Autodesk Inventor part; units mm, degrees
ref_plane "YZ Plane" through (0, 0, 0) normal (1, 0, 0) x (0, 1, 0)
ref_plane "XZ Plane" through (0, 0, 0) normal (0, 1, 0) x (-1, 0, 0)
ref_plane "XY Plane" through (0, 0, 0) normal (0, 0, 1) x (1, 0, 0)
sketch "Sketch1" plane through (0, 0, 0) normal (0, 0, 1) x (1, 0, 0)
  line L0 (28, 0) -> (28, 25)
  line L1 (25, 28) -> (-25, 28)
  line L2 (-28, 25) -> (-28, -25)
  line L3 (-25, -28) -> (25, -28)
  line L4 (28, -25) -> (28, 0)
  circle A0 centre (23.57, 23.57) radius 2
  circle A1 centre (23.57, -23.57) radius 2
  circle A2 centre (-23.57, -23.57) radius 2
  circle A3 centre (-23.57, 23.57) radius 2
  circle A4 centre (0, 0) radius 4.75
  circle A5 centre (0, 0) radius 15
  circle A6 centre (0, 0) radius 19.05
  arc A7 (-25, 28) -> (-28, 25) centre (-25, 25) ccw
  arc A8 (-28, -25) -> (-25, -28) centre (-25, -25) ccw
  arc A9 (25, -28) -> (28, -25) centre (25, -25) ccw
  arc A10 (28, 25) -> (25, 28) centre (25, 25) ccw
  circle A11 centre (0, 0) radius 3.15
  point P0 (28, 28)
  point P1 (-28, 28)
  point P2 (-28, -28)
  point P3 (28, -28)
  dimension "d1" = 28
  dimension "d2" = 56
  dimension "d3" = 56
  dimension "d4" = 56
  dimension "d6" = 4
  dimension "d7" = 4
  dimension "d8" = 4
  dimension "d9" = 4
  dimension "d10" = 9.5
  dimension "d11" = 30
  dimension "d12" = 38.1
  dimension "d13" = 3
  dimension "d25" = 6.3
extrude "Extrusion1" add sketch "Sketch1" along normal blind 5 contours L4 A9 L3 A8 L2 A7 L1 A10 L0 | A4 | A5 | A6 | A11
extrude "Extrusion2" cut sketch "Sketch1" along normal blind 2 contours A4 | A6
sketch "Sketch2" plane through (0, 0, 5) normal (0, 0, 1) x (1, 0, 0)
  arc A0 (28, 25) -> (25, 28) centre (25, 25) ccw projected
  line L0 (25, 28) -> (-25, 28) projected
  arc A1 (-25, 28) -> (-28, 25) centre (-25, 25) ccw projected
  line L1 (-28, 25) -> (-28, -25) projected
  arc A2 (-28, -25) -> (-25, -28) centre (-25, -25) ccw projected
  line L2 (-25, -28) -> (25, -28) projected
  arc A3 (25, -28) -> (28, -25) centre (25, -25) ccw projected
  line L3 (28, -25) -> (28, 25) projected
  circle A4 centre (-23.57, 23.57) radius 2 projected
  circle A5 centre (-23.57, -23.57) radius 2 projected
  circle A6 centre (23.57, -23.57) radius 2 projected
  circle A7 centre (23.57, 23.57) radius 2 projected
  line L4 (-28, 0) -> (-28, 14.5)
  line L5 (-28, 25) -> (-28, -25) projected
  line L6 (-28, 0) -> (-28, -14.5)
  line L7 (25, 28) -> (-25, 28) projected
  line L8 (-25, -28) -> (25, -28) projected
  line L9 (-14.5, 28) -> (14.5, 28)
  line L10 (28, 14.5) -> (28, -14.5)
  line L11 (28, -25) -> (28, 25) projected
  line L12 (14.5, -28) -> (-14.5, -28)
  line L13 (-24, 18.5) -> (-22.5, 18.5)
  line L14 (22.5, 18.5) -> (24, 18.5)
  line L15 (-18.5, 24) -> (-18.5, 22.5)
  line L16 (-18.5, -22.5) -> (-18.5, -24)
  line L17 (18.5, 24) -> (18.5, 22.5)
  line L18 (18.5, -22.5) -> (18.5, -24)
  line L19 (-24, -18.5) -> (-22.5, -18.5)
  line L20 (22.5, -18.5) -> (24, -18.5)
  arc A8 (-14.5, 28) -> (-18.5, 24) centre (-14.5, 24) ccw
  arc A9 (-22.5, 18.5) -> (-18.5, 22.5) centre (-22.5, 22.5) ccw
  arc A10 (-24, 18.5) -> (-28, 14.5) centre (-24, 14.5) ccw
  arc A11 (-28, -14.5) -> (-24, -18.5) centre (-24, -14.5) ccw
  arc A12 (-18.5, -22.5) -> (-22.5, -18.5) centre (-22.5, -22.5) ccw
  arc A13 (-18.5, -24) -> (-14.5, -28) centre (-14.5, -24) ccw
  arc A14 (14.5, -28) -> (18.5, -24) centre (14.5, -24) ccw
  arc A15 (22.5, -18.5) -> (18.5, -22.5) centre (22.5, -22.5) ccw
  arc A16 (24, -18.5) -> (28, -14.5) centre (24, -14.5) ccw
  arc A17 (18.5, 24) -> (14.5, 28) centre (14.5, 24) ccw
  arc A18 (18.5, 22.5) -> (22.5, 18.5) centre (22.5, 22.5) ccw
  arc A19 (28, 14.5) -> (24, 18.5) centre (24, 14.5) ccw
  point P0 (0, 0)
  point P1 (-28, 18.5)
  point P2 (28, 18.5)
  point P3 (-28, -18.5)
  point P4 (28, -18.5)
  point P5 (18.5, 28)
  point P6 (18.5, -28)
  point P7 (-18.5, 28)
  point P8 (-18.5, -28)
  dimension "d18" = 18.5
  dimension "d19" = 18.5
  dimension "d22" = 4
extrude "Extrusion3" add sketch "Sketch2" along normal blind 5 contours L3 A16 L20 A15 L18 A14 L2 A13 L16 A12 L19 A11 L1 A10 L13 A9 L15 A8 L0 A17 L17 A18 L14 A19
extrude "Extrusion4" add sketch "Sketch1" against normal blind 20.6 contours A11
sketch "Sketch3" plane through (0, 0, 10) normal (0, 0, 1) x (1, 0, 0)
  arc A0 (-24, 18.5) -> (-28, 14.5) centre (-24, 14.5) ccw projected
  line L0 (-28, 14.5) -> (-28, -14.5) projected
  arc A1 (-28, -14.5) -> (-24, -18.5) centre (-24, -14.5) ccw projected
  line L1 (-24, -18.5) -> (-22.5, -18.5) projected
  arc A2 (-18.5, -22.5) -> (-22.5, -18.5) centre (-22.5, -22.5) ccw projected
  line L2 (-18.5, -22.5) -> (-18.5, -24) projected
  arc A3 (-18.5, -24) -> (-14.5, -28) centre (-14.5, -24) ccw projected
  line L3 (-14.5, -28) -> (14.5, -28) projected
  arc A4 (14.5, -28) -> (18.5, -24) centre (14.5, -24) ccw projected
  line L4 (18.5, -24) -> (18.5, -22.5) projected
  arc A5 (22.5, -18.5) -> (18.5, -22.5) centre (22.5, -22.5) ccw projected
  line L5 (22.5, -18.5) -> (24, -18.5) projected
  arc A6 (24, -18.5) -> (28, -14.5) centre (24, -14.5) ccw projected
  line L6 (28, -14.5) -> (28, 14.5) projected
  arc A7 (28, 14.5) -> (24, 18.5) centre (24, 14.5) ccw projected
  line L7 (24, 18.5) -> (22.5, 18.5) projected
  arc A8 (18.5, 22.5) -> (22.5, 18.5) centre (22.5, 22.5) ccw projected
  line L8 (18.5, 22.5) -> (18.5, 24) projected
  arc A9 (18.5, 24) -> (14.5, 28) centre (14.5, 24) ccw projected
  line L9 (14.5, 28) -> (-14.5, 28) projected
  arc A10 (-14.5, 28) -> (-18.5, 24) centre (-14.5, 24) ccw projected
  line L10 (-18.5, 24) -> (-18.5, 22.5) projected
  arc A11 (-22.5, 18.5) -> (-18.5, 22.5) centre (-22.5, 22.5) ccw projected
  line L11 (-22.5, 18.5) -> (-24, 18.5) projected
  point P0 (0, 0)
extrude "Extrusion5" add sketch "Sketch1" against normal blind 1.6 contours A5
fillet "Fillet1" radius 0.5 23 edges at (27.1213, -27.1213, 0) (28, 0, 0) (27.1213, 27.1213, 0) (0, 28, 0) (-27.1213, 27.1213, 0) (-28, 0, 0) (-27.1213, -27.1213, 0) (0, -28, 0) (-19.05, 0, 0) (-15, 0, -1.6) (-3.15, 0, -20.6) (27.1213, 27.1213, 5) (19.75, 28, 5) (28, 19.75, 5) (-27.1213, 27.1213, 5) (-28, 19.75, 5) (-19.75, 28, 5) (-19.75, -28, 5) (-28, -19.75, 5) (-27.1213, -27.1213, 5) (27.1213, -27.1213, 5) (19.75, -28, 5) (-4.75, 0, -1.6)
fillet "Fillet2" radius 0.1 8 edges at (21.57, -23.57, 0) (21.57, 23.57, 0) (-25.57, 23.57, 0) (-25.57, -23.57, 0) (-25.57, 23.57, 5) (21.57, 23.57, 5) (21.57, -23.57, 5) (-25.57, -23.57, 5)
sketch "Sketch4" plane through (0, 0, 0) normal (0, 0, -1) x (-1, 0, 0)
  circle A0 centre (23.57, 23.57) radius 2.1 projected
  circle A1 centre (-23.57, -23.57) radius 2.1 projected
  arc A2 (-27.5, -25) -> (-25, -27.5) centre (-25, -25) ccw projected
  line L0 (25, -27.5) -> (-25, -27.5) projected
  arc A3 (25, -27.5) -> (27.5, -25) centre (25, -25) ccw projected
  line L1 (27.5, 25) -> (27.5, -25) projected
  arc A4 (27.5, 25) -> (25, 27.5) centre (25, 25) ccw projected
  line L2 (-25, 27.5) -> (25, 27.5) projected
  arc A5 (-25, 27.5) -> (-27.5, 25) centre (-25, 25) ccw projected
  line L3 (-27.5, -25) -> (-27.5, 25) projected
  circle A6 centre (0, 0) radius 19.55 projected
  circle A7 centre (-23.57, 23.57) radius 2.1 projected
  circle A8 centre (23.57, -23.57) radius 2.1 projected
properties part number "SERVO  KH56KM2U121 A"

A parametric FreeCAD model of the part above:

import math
import FreeCAD as App
import Part
import Sketcher
from FreeCAD import Vector


def edges_at(feature, points):
    """Names of the edges that pass closest to the given points."""
    edges = feature.Shape.Edges
    near = lambda p: min(range(len(edges)), key=lambda i: edges[i].distToShape(Part.Vertex(*p))[0])
    return sorted({f"Edge{near(p) + 1}" for p in points})

doc = App.newDocument("Part")
params = doc.addObject("Spreadsheet::Sheet", "Params")
for row, (alias, value) in enumerate([
    ("sketch1_diameter", "4 mm"),
    ("sketch1_radius", "3 mm"),
    ("pad1_length", "5 mm"),
    ("sketch2_diameter", "30 mm"),
    ("sketch2_diameter2", "9.5 mm"),
    ("sketch2_diameter3", "6.3 mm"),
    ("sketch2_diameter4", "38.1 mm"),
    ("pocket1_length", "2 mm"),
    ("sketch3_radius", "4 mm"),
    ("sketch3_width", "1.5 mm"),
    ("pad2_length", "5 mm"),
    ("sketch4_diameter", "6.3 mm"),
    ("pad3_length", "20.6 mm"),
    ("sketch5_diameter", "30 mm"),
    ("sketch5_diameter2", "9.5 mm"),
    ("pad4_length", "1.6 mm"),
    ("fillet_radius", "0.5 mm"),
    ("fillet2_radius", "0.1 mm"),
], start=1):
    params.set(f"A{row}", alias)
    params.set(f"B{row}", "=" + value)
    params.setAlias(f"B{row}", alias)

body = doc.addObject("PartDesign::Body", "Body")

# Sketch on XY plane
sketch1 = body.newObject("Sketcher::SketchObject", "Sketch")
sketch1.AttachmentSupport = (doc.getObject("XY_Plane"), [""])
sketch1.MapMode = "FlatFace"
sketch1.addGeometry(Part.LineSegment(Vector(28, -25, 0), Vector(28, 25, 0)), False)
sketch1.addGeometry(Part.ArcOfCircle(Part.Circle(Vector(25, 25, 0), Vector(0, 0, 1), 3), math.radians(0), math.radians(90)), False)
sketch1.addGeometry(Part.LineSegment(Vector(25, 28, 0), Vector(-25, 28, 0)), False)
sketch1.addGeometry(Part.ArcOfCircle(Part.Circle(Vector(-25, 25, 0), Vector(0, 0, 1), 3), math.radians(90), math.radians(180)), False)
sketch1.addGeometry(Part.LineSegment(Vector(-28, 25, 0), Vector(-28, -25, 0)), False)
sketch1.addGeometry(Part.ArcOfCircle(Part.Circle(Vector(-25, -25, 0), Vector(0, 0, 1), 3), math.radians(180), math.radians(270)), False)
sketch1.addGeometry(Part.LineSegment(Vector(-25, -28, 0), Vector(25, -28, 0)), False)
sketch1.addGeometry(Part.ArcOfCircle(Part.Circle(Vector(25, -25, 0), Vector(0, 0, 1), 3), math.radians(-90), math.radians(0)), False)
sketch1.addGeometry(Part.Circle(Vector(-23.57, -23.57, 0), Vector(0, 0, 1), 2), False)
sketch1.addGeometry(Part.Circle(Vector(23.57, -23.57, 0), Vector(0, 0, 1), 2), False)
sketch1.addGeometry(Part.Circle(Vector(-23.57, 23.57, 0), Vector(0, 0, 1), 2), False)
sketch1.addGeometry(Part.Circle(Vector(23.57, 23.57, 0), Vector(0, 0, 1), 2), False)
sketch1.addConstraint(Sketcher.Constraint("Tangent", 0, 2, 1, 1))
sketch1.addConstraint(Sketcher.Constraint("Tangent", 1, 2, 2, 1))
sketch1.addConstraint(Sketcher.Constraint("Tangent", 2, 2, 3, 1))
sketch1.addConstraint(Sketcher.Constraint("Tangent", 3, 2, 4, 1))
sketch1.addConstraint(Sketcher.Constraint("Tangent", 4, 2, 5, 1))
sketch1.addConstraint(Sketcher.Constraint("Tangent", 5, 2, 6, 1))
sketch1.addConstraint(Sketcher.Constraint("Tangent", 6, 2, 7, 1))
sketch1.addConstraint(Sketcher.Constraint("Tangent", 7, 2, 0, 1))
sketch1.addConstraint(Sketcher.Constraint("Vertical", 0))
sketch1.addConstraint(Sketcher.Constraint("Horizontal", 2))
sketch1.addConstraint(Sketcher.Constraint("Vertical", 4))
sketch1.addConstraint(Sketcher.Constraint("Horizontal", 6))
sketch1.addConstraint(Sketcher.Constraint("Equal", 1, 3))
sketch1.addConstraint(Sketcher.Constraint("Equal", 3, 5))
sketch1.addConstraint(Sketcher.Constraint("Equal", 5, 7))
sketch1.addConstraint(Sketcher.Constraint("Equal", 8, 9))
sketch1.addConstraint(Sketcher.Constraint("Equal", 9, 10))
sketch1.addConstraint(Sketcher.Constraint("Equal", 10, 11))
sketch1.addConstraint(Sketcher.Constraint("Symmetric", 1, 3, 5, 3, -1, 1))
sketch1.addConstraint(Sketcher.Constraint("Symmetric", 9, 3, 10, 3, -1, 1))
sketch1.addConstraint(Sketcher.Constraint("Symmetric", 8, 3, 11, 3, -1, 1))
sketch1.addConstraint(Sketcher.Constraint("Symmetric", 8, 3, 9, 3, -2))
sketch1.addConstraint(Sketcher.Constraint("Equal", 6, 0))
sketch1.addConstraint(Sketcher.Constraint("Diameter", 8, 4.0))
sketch1.addConstraint(Sketcher.Constraint("Radius", 1, 3.0))
sketch1.addConstraint(Sketcher.Constraint("DistanceX", -1, 1, 0, 2, 28.0))
sketch1.addConstraint(Sketcher.Constraint("DistanceX", 8, 3, -1, 1, 23.57))
sketch1.addConstraint(Sketcher.Constraint("DistanceY", 8, 3, -1, 1, 23.57))
sketch1.setExpression("Constraints[23]", "Params.sketch1_diameter")
sketch1.setExpression("Constraints[24]", "Params.sketch1_radius")
pad1 = body.newObject("PartDesign::Pad", "Pad")
pad1.Profile = sketch1
pad1.setExpression("Length", "Params.pad1_length")

# Sketch on XY plane
sketch2 = body.newObject("Sketcher::SketchObject", "Sketch001")
sketch2.AttachmentSupport = (doc.getObject("XY_Plane"), [""])
sketch2.MapMode = "FlatFace"
sketch2.addGeometry(Part.Circle(Vector(0, 0, 0), Vector(0, 0, 1), 4.75), False)
sketch2.addGeometry(Part.Circle(Vector(0, 0, 0), Vector(0, 0, 1), 3.15), False)
sketch2.addGeometry(Part.Circle(Vector(0, 0, 0), Vector(0, 0, 1), 19.05), False)
sketch2.addGeometry(Part.Circle(Vector(0, 0, 0), Vector(0, 0, 1), 15), False)
sketch2.addConstraint(Sketcher.Constraint("Coincident", 0, 3, -1, 1))
sketch2.addConstraint(Sketcher.Constraint("Coincident", 1, 3, -1, 1))
sketch2.addConstraint(Sketcher.Constraint("Coincident", 2, 3, -1, 1))
sketch2.addConstraint(Sketcher.Constraint("Coincident", 3, 3, -1, 1))
sketch2.addConstraint(Sketcher.Constraint("Diameter", 3, 30.0))
sketch2.addConstraint(Sketcher.Constraint("Diameter", 0, 9.5))
sketch2.addConstraint(Sketcher.Constraint("Diameter", 1, 6.3))
sketch2.addConstraint(Sketcher.Constraint("Diameter", 2, 38.1))
sketch2.setExpression("Constraints[4]", "Params.sketch2_diameter")
sketch2.setExpression("Constraints[5]", "Params.sketch2_diameter2")
sketch2.setExpression("Constraints[6]", "Params.sketch2_diameter3")
sketch2.setExpression("Constraints[7]", "Params.sketch2_diameter4")
pocket1 = body.newObject("PartDesign::Pocket", "Pocket")
pocket1.Profile = sketch2
pocket1.setExpression("Length", "Params.pocket1_length")
pocket1.Reversed = True

# Sketch on XY plane
sketch3 = body.newObject("Sketcher::SketchObject", "Sketch002")
sketch3.AttachmentSupport = (doc.getObject("XY_Plane"), [""])
sketch3.MapMode = "FlatFace"
sketch3.AttachmentOffset = App.Placement(Vector(0, 0, 5), App.Rotation())
sketch3.addGeometry(Part.LineSegment(Vector(28, -14.5, 0), Vector(28, 14.5, 0)), False)
sketch3.addGeometry(Part.ArcOfCircle(Part.Circle(Vector(24, 14.5, 0), Vector(0, 0, 1), 4), math.radians(0), math.radians(90)), False)
sketch3.addGeometry(Part.LineSegment(Vector(24, 18.5, 0), Vector(22.5, 18.5, 0)), False)
sketch3.addGeometry(Part.ArcOfCircle(Part.Circle(Vector(22.5, 22.5, 0), Vector(0, 0, 1), 4), math.radians(180), math.radians(270)), False)
sketch3.addGeometry(Part.LineSegment(Vector(18.5, 22.5, 0), Vector(18.5, 24, 0)), False)
sketch3.addGeometry(Part.ArcOfCircle(Part.Circle(Vector(14.5, 24, 0), Vector(0, 0, 1), 4), math.radians(0), math.radians(90)), False)
sketch3.addGeometry(Part.LineSegment(Vector(14.5, 28, 0), Vector(-14.5, 28, 0)), False)
sketch3.addGeometry(Part.ArcOfCircle(Part.Circle(Vector(-14.5, 24, 0), Vector(0, 0, 1), 4), math.radians(90), math.radians(180)), False)
sketch3.addGeometry(Part.LineSegment(Vector(-18.5, 24, 0), Vector(-18.5, 22.5, 0)), False)
sketch3.addGeometry(Part.ArcOfCircle(Part.Circle(Vector(-22.5, 22.5, 0), Vector(0, 0, 1), 4), math.radians(-90), math.radians(0)), False)
sketch3.addGeometry(Part.LineSegment(Vector(-22.5, 18.5, 0), Vector(-24, 18.5, 0)), False)
sketch3.addGeometry(Part.ArcOfCircle(Part.Circle(Vector(-24, 14.5, 0), Vector(0, 0, 1), 4), math.radians(90), math.radians(180)), False)
sketch3.addGeometry(Part.LineSegment(Vector(-28, 14.5, 0), Vector(-28, -14.5, 0)), False)
sketch3.addGeometry(Part.ArcOfCircle(Part.Circle(Vector(-24, -14.5, 0), Vector(0, 0, 1), 4), math.radians(180), math.radians(270)), False)
sketch3.addGeometry(Part.LineSegment(Vector(-24, -18.5, 0), Vector(-22.5, -18.5, 0)), False)
sketch3.addGeometry(Part.ArcOfCircle(Part.Circle(Vector(-22.5, -22.5, 0), Vector(0, 0, 1), 4), math.radians(0), math.radians(90)), False)
sketch3.addGeometry(Part.LineSegment(Vector(-18.5, -22.5, 0), Vector(-18.5, -24, 0)), False)
sketch3.addGeometry(Part.ArcOfCircle(Part.Circle(Vector(-14.5, -24, 0), Vector(0, 0, 1), 4), math.radians(180), math.radians(270)), False)
sketch3.addGeometry(Part.LineSegment(Vector(-14.5, -28, 0), Vector(14.5, -28, 0)), False)
sketch3.addGeometry(Part.ArcOfCircle(Part.Circle(Vector(14.5, -24, 0), Vector(0, 0, 1), 4), math.radians(-90), math.radians(0)), False)
sketch3.addGeometry(Part.LineSegment(Vector(18.5, -24, 0), Vector(18.5, -22.5, 0)), False)
sketch3.addGeometry(Part.ArcOfCircle(Part.Circle(Vector(22.5, -22.5, 0), Vector(0, 0, 1), 4), math.radians(90), math.radians(180)), False)
sketch3.addGeometry(Part.LineSegment(Vector(22.5, -18.5, 0), Vector(24, -18.5, 0)), False)
sketch3.addGeometry(Part.ArcOfCircle(Part.Circle(Vector(24, -14.5, 0), Vector(0, 0, 1), 4), math.radians(-90), math.radians(0)), False)
sketch3.addConstraint(Sketcher.Constraint("Tangent", 0, 2, 1, 1))
sketch3.addConstraint(Sketcher.Constraint("Tangent", 1, 2, 2, 1))
sketch3.addConstraint(Sketcher.Constraint("Tangent", 2, 2, 3, 2))
sketch3.addConstraint(Sketcher.Constraint("Tangent", 3, 1, 4, 1))
sketch3.addConstraint(Sketcher.Constraint("Tangent", 4, 2, 5, 1))
sketch3.addConstraint(Sketcher.Constraint("Tangent", 5, 2, 6, 1))
sketch3.addConstraint(Sketcher.Constraint("Tangent", 6, 2, 7, 1))
sketch3.addConstraint(Sketcher.Constraint("Tangent", 7, 2, 8, 1))
sketch3.addConstraint(Sketcher.Constraint("Tangent", 8, 2, 9, 2))
sketch3.addConstraint(Sketcher.Constraint("Tangent", 9, 1, 10, 1))
sketch3.addConstraint(Sketcher.Constraint("Tangent", 10, 2, 11, 1))
sketch3.addConstraint(Sketcher.Constraint("Tangent", 11, 2, 12, 1))
sketch3.addConstraint(Sketcher.Constraint("Tangent", 12, 2, 13, 1))
sketch3.addConstraint(Sketcher.Constraint("Tangent", 13, 2, 14, 1))
sketch3.addConstraint(Sketcher.Constraint("Tangent", 14, 2, 15, 2))
sketch3.addConstraint(Sketcher.Constraint("Tangent", 15, 1, 16, 1))
sketch3.addConstraint(Sketcher.Constraint("Tangent", 16, 2, 17, 1))
sketch3.addConstraint(Sketcher.Constraint("Tangent", 17, 2, 18, 1))
sketch3.addConstraint(Sketcher.Constraint("Tangent", 18, 2, 19, 1))
sketch3.addConstraint(Sketcher.Constraint("Tangent", 19, 2, 20, 1))
sketch3.addConstraint(Sketcher.Constraint("Tangent", 20, 2, 21, 2))
sketch3.addConstraint(Sketcher.Constraint("Tangent", 21, 1, 22, 1))
sketch3.addConstraint(Sketcher.Constraint("Tangent", 22, 2, 23, 1))
sketch3.addConstraint(Sketcher.Constraint("Tangent", 23, 2, 0, 1))
sketch3.addConstraint(Sketcher.Constraint("Vertical", 0))
sketch3.addConstraint(Sketcher.Constraint("Horizontal", 2))
sketch3.addConstraint(Sketcher.Constraint("Vertical", 4))
sketch3.addConstraint(Sketcher.Constraint("Horizontal", 6))
sketch3.addConstraint(Sketcher.Constraint("Vertical", 8))
sketch3.addConstraint(Sketcher.Constraint("Horizontal", 10))
sketch3.addConstraint(Sketcher.Constraint("Vertical", 12))
sketch3.addConstraint(Sketcher.Constraint("Horizontal", 14))
sketch3.addConstraint(Sketcher.Constraint("Vertical", 16))
sketch3.addConstraint(Sketcher.Constraint("Horizontal", 18))
sketch3.addConstraint(Sketcher.Constraint("Vertical", 20))
sketch3.addConstraint(Sketcher.Constraint("Horizontal", 22))
sketch3.addConstraint(Sketcher.Constraint("Equal", 1, 3))
sketch3.addConstraint(Sketcher.Constraint("Equal", 3, 5))
sketch3.addConstraint(Sketcher.Constraint("Equal", 5, 7))
sketch3.addConstraint(Sketcher.Constraint("Equal", 7, 9))
sketch3.addConstraint(Sketcher.Constraint("Equal", 9, 11))
sketch3.addConstraint(Sketcher.Constraint("Equal", 11, 13))
sketch3.addConstraint(Sketcher.Constraint("Equal", 13, 15))
sketch3.addConstraint(Sketcher.Constraint("Equal", 15, 17))
sketch3.addConstraint(Sketcher.Constraint("Equal", 17, 19))
sketch3.addConstraint(Sketcher.Constraint("Equal", 19, 21))
sketch3.addConstraint(Sketcher.Constraint("Equal", 21, 23))
sketch3.addConstraint(Sketcher.Constraint("Symmetric", 1, 3, 13, 3, -1, 1))
sketch3.addConstraint(Sketcher.Constraint("Symmetric", 5, 3, 17, 3, -1, 1))
sketch3.addConstraint(Sketcher.Constraint("Symmetric", 9, 3, 21, 3, -1, 1))
sketch3.addConstraint(Sketcher.Constraint("Symmetric", 3, 3, 9, 3, -2))
sketch3.addConstraint(Sketcher.Constraint("Equal", 18, 0))
sketch3.addConstraint(Sketcher.Constraint("Equal", 22, 4))
sketch3.addConstraint(Sketcher.Constraint("Radius", 1, 4.0))
sketch3.addConstraint(Sketcher.Constraint("DistanceY", -1, 1, 1, 2, 18.5))
sketch3.addConstraint(Sketcher.Constraint("DistanceX", 2, 2, 2, 1, 1.5))
sketch3.setExpression("Constraints[53]", "Params.sketch3_radius")
sketch3.setExpression("Constraints[55]", "Params.sketch3_width")
pad2 = body.newObject("PartDesign::Pad", "Pad001")
pad2.Profile = sketch3
pad2.setExpression("Length", "Params.pad2_length")

# Sketch on XY plane
sketch4 = body.newObject("Sketcher::SketchObject", "Sketch003")
sketch4.AttachmentSupport = (doc.getObject("XY_Plane"), [""])
sketch4.MapMode = "FlatFace"
sketch4.addGeometry(Part.Circle(Vector(0, 0, 0), Vector(0, 0, 1), 3.15), False)
sketch4.addConstraint(Sketcher.Constraint("Coincident", 0, 3, -1, 1))
sketch4.addConstraint(Sketcher.Constraint("Diameter", 0, 6.3))
sketch4.setExpression("Constraints[1]", "Params.sketch4_diameter")
pad3 = body.newObject("PartDesign::Pad", "Pad002")
pad3.Profile = sketch4
pad3.setExpression("Length", "Params.pad3_length")
pad3.Reversed = True

# Sketch on XY plane
sketch5 = body.newObject("Sketcher::SketchObject", "Sketch004")
sketch5.AttachmentSupport = (doc.getObject("XY_Plane"), [""])
sketch5.MapMode = "FlatFace"
sketch5.addGeometry(Part.Circle(Vector(0, 0, 0), Vector(0, 0, 1), 15), False)
sketch5.addGeometry(Part.Circle(Vector(0, 0, 0), Vector(0, 0, 1), 4.75), False)
sketch5.addConstraint(Sketcher.Constraint("Coincident", 0, 3, -1, 1))
sketch5.addConstraint(Sketcher.Constraint("Coincident", 1, 3, -1, 1))
sketch5.addConstraint(Sketcher.Constraint("Diameter", 0, 30.0))
sketch5.addConstraint(Sketcher.Constraint("Diameter", 1, 9.5))
sketch5.setExpression("Constraints[2]", "Params.sketch5_diameter")
sketch5.setExpression("Constraints[3]", "Params.sketch5_diameter2")
pad4 = body.newObject("PartDesign::Pad", "Pad003")
pad4.Profile = sketch5
pad4.setExpression("Length", "Params.pad4_length")
pad4.Reversed = True
doc.recompute()

fillet = body.newObject("PartDesign::Fillet", "Fillet")
fillet.Base = (pad4, edges_at(pad4, [
    (27.121, -27.121, 0),
    (28, 0, 0),
    (27.121, 27.121, 0),
    (0, 28, 0),
    (-27.121, 27.121, 0),
    (-28, 0, 0),
    (-27.121, -27.121, 0),
    (0, -28, 0),
    (-19.05, 0, 0),
    (-15, 0, -1.6),
    (-3.15, 0, -20.6),
    (27.121, 27.121, 5),
    (19.75, 28, 5),
    (28, 19.75, 5),
    (-27.121, 27.121, 5),
    (-28, 19.75, 5),
    (-19.75, 28, 5),
    (-19.75, -28, 5),
    (-28, -19.75, 5),
    (-27.121, -27.121, 5),
    (27.121, -27.121, 5),
    (19.75, -28, 5),
    (-4.75, 0, -1.6),
]))
fillet.setExpression("Radius", "Params.fillet_radius")
doc.recompute()

fillet2 = body.newObject("PartDesign::Fillet", "Fillet001")
fillet2.Base = (fillet, edges_at(fillet, [
    (21.57, -23.57, 0),
    (21.57, 23.57, 0),
    (-25.57, 23.57, 0),
    (-25.57, -23.57, 0),
    (-25.57, 23.57, 5),
    (21.57, 23.57, 5),
    (21.57, -23.57, 5),
    (-25.57, -23.57, 5),
]))
fillet2.setExpression("Radius", "Params.fillet2_radius")

doc.recompute()
